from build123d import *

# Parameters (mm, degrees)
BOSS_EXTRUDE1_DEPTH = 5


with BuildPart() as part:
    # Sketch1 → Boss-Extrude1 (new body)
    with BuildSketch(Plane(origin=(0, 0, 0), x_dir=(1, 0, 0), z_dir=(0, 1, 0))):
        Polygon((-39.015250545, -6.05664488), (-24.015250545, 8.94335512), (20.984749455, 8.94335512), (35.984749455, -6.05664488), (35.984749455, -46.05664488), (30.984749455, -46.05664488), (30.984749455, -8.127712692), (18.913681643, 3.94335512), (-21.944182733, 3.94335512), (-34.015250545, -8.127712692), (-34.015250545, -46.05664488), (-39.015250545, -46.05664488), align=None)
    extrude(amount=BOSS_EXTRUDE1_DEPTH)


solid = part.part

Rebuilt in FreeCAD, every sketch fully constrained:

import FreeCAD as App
import Part
import Sketcher
Q = App.Units.Quantity


def add_polygon(sketch, points):
    """Adds a closed chain of lines whose ends are joined by coincident constraints."""
    first, n = sketch.GeometryCount, len(points)
    for a, b in zip(points, points[1:] + points[:1]):
        sketch.addGeometry(Part.LineSegment(App.Vector(*a, 0), App.Vector(*b, 0)), False)
    for i in range(n):
        sketch.addConstraint(Sketcher.Constraint("Coincident", first + i, 2, first + (i + 1) % n, 1))

doc = App.newDocument("Part")
body = doc.addObject("PartDesign::Body", "Body")

sketch1 = body.newObject("Sketcher::SketchObject", "Sketch")
sketch1.AttachmentSupport = (doc.getObject("XZ_Plane"), [""])
sketch1.MapMode = "FlatFace"
add_polygon(sketch1, [(-24.015251, -8.943355), (-39.015251, 6.056645), (-39.015251, 46.056645), (-34.015251, 46.056645), (-34.015251, 8.127713), (-21.944183, -3.943355), (18.913682, -3.943355), (30.984749, 8.127713), (30.984749, 46.056645), (35.984749, 46.056645), (35.984749, 6.056645), (20.984749, -8.943355)])
sketch1.addConstraint([
    Sketcher.Constraint("Vertical", 1),
    Sketcher.Constraint("Horizontal", 2),
    Sketcher.Constraint("Vertical", 3),
    Sketcher.Constraint("Horizontal", 5),
    Sketcher.Constraint("Vertical", 7),
    Sketcher.Constraint("Horizontal", 8),
    Sketcher.Constraint("Vertical", 9),
    Sketcher.Constraint("Horizontal", 11),
    Sketcher.Constraint("Parallel", 0, 4),
    Sketcher.Constraint("Perpendicular", 4, 6),
    Sketcher.Constraint("Parallel", 6, 10),
    Sketcher.Constraint("Horizontal", 3, 2, 6, 2),
    Sketcher.Constraint("Horizontal", 2, 2, 7, 2),
    Sketcher.Constraint("Horizontal", 0, 2, 9, 2),
    Sketcher.Constraint("Equal", 2, 8),
    Sketcher.Constraint("Equal", 4, 6),
    Sketcher.Constraint("DistanceX", 2, 1, 2, 2, Q("5 mm")),
    Sketcher.Constraint("DistanceX", 11, 2, 11, 1, Q("45 mm")),
    Sketcher.Constraint("DistanceY", 1, 1, 1, 2, Q("40 mm")),
    Sketcher.Constraint("DistanceY", 4, 2, 0, 2, Q("10 mm")),
    Sketcher.Constraint("DistanceX", 3, 2, 6, 2, Q("65 mm")),
    Sketcher.Constraint("DistanceX", 5, 1, 5, 2, Q("40.857864 mm")),
    Sketcher.Constraint("DistanceX", 0, 2, -1, 1, Q("39.015251 mm")),
    Sketcher.Constraint("DistanceY", -1, 1, 0, 2, Q("6.056645 mm")),
])
pad1 = body.newObject("PartDesign::Pad", "Pad")
pad1.Profile = sketch1
pad1.Length = 5
pad1.Reversed = True

doc.recompute()
